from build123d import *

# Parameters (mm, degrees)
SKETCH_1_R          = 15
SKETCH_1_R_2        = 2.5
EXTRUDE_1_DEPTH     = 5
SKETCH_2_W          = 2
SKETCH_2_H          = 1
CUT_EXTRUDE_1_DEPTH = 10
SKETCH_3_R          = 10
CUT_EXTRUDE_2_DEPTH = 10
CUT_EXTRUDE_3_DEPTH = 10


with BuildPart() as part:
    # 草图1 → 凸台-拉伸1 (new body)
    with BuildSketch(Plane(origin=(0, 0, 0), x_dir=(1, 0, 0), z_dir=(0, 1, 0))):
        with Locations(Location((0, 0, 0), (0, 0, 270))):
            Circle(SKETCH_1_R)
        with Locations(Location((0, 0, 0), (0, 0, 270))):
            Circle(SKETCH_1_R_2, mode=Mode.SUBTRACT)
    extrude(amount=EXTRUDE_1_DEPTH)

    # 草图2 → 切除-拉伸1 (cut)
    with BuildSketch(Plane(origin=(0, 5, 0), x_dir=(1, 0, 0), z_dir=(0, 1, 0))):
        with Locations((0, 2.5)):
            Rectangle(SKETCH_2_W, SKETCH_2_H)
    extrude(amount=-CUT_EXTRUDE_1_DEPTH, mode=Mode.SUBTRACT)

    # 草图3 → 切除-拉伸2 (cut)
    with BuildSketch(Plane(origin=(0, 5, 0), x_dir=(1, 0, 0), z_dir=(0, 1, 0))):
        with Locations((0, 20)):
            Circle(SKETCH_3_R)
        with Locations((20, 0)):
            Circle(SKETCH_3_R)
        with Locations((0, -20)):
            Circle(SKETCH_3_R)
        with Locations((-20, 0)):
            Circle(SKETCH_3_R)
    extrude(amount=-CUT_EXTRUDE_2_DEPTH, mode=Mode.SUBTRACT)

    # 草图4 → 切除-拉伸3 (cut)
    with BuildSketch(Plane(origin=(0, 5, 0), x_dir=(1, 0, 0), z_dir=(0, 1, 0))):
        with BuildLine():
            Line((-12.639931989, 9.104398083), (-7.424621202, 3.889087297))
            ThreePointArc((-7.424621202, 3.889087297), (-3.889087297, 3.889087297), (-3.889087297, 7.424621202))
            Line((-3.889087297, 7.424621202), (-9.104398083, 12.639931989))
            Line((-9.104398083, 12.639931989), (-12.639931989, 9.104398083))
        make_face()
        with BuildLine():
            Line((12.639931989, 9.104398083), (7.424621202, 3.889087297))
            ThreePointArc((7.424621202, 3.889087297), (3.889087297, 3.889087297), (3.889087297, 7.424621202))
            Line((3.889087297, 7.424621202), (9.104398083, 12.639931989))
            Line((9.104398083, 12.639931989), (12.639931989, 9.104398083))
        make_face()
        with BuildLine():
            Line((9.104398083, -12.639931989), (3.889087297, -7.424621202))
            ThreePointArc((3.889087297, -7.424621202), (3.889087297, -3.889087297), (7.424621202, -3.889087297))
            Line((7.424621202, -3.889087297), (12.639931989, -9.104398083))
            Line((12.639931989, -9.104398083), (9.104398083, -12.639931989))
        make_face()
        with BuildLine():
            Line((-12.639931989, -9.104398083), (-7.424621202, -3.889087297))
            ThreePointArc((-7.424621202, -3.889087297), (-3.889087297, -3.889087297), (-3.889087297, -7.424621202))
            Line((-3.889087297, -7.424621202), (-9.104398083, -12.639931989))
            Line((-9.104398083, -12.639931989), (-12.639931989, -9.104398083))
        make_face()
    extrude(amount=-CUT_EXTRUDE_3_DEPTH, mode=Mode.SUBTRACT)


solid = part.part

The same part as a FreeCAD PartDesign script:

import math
import FreeCAD as App
import Part
import Sketcher

V = App.Vector
Q = App.Units.Quantity


def add_polygon(sketch, points):
    """Adds a closed chain of lines whose ends are joined by coincident constraints."""
    first, n = sketch.GeometryCount, len(points)
    for a, b in zip(points, points[1:] + points[:1]):
        sketch.addGeometry(Part.LineSegment(App.Vector(*a, 0), App.Vector(*b, 0)), False)
    for i in range(n):
        sketch.addConstraint(Sketcher.Constraint("Coincident", first + i, 2, first + (i + 1) % n, 1))

doc = App.newDocument("Part")
body = doc.addObject("PartDesign::Body", "Body")

# Sketch on XZ plane
sketch1 = body.newObject("Sketcher::SketchObject", "Sketch")
sketch1.AttachmentSupport = (doc.getObject("XZ_Plane"), [""])
sketch1.MapMode = "FlatFace"
sketch1.addGeometry([
    Part.Circle(V(0, 0, 0), V(0, 0, 1), 15),
    Part.Circle(V(0, 0, 0), V(0, 0, 1), 2.5),
], False)
sketch1.addConstraint([
    Sketcher.Constraint("Coincident", 0, 3, -1, 1),
    Sketcher.Constraint("Coincident", 1, 3, -1, 1),
    Sketcher.Constraint("Diameter", 0, Q("30 mm")),
    Sketcher.Constraint("Diameter", 1, Q("5 mm")),
])
pad1 = body.newObject("PartDesign::Pad", "Pad")
pad1.Profile = sketch1
pad1.Length = 5
pad1.Reversed = True

# Sketch on XZ plane
sketch2 = body.newObject("Sketcher::SketchObject", "Sketch001")
sketch2.AttachmentSupport = (doc.getObject("XZ_Plane"), [""])
sketch2.MapMode = "FlatFace"
sketch2.AttachmentOffset = App.Placement(V(0, 0, -5), App.Rotation())
add_polygon(sketch2, [(-1, -3), (-1, -2), (1, -2), (1, -3)])  # lines 0-3
sketch2.addConstraint([
    Sketcher.Constraint("Vertical", 0),
    Sketcher.Constraint("Horizontal", 1),
    Sketcher.Constraint("Vertical", 2),
    Sketcher.Constraint("Horizontal", 3),
    Sketcher.Constraint("DistanceX", 1, 1, 1, 2, Q("2 mm")),
    Sketcher.Constraint("DistanceY", 0, 1, 0, 2, Q("1 mm")),
    Sketcher.Constraint("DistanceX", 0, 2, -1, 1, Q("1 mm")),
    Sketcher.Constraint("DistanceY", 0, 2, -1, 1, Q("2 mm")),
])
pocket1 = body.newObject("PartDesign::Pocket", "Pocket")
pocket1.Profile = sketch2
pocket1.Length = 10
pocket1.Reversed = True

# Sketch on XZ plane
sketch3 = body.newObject("Sketcher::SketchObject", "Sketch002")
sketch3.AttachmentSupport = (doc.getObject("XZ_Plane"), [""])
sketch3.MapMode = "FlatFace"
sketch3.AttachmentOffset = App.Placement(V(0, 0, -5), App.Rotation())
sketch3.addGeometry([
    Part.Circle(V(0, -20, 0), V(0, 0, 1), 10),
    Part.Circle(V(20, 0, 0), V(0, 0, 1), 10),
    Part.Circle(V(0, 20, 0), V(0, 0, 1), 10),
    Part.Circle(V(-20, 0, 0), V(0, 0, 1), 10),
], False)
sketch3.addConstraint([
    Sketcher.Constraint("Equal", 0, 1),
    Sketcher.Constraint("Equal", 1, 2),
    Sketcher.Constraint("Equal", 2, 3),
    Sketcher.Constraint("Symmetric", 0, 3, 2, 3, -1, 1),
    Sketcher.Constraint("Symmetric", 1, 3, 3, 3, -1, 1),
    Sketcher.Constraint("PointOnObject", 0, 3, -2),
    Sketcher.Constraint("PointOnObject", 1, 3, -1),
    Sketcher.Constraint("Diameter", 0, Q("20 mm")),
    Sketcher.Constraint("DistanceY", 0, 3, -1, 1, Q("20 mm")),
    Sketcher.Constraint("DistanceX", -1, 1, 1, 3, Q("20 mm")),
])
pocket2 = body.newObject("PartDesign::Pocket", "Pocket001")
pocket2.Profile = sketch3
pocket2.Length = 10
pocket2.Reversed = True

# Sketch on XZ plane
sketch4 = body.newObject("Sketcher::SketchObject", "Sketch003")
sketch4.AttachmentSupport = (doc.getObject("XZ_Plane"), [""])
sketch4.MapMode = "FlatFace"
sketch4.AttachmentOffset = App.Placement(V(0, 0, -5), App.Rotation())
sketch4.addGeometry([
    Part.LineSegment(V(-12.6, -9.1, 0), V(-7.4, -3.9, 0)),  # 0
    Part.ArcOfCircle(Part.Circle(V(-5.7, -5.7, 0), V(0, 0, 1), 2.5), math.radians(-45), math.radians(135)),  # 1
    Part.LineSegment(V(-3.9, -7.4, 0), V(-9.1, -12.6, 0)),  # 2
    Part.LineSegment(V(-9.1, -12.6, 0), V(-12.6, -9.1, 0)),  # 3
    Part.LineSegment(V(7.4, -3.9, 0), V(12.6, -9.1, 0)),  # 4
    Part.LineSegment(V(12.6, -9.1, 0), V(9.1, -12.6, 0)),  # 5
    Part.LineSegment(V(9.1, -12.6, 0), V(3.9, -7.4, 0)),  # 6
    Part.ArcOfCircle(Part.Circle(V(5.7, -5.7, 0), V(0, 0, 1), 2.5), math.radians(45), math.radians(225)),  # 7
    Part.LineSegment(V(3.9, 7.4, 0), V(9.1, 12.6, 0)),  # 8
    Part.LineSegment(V(9.1, 12.6, 0), V(12.6, 9.1, 0)),  # 9
    Part.LineSegment(V(12.6, 9.1, 0), V(7.4, 3.9, 0)),  # 10
    Part.ArcOfCircle(Part.Circle(V(5.7, 5.7, 0), V(0, 0, 1), 2.5), math.radians(135), math.radians(315)),  # 11
    Part.LineSegment(V(-7.4, 3.9, 0), V(-12.6, 9.1, 0)),  # 12
    Part.LineSegment(V(-12.6, 9.1, 0), V(-9.1, 12.6, 0)),  # 13
    Part.LineSegment(V(-9.1, 12.6, 0), V(-3.9, 7.4, 0)),  # 14
    Part.ArcOfCircle(Part.Circle(V(-5.7, 5.7, 0), V(0, 0, 1), 2.5), math.radians(-135), math.radians(45)),  # 15
], False)
sketch4.addConstraint([
    Sketcher.Constraint("Tangent", 0, 2, 1, 2),
    Sketcher.Constraint("Tangent", 1, 1, 2, 1),
    Sketcher.Constraint("Coincident", 2, 2, 3, 1),
    Sketcher.Constraint("Coincident", 3, 2, 0, 1),
    Sketcher.Constraint("Coincident", 4, 2, 5, 1),
    Sketcher.Constraint("Coincident", 5, 2, 6, 1),
    Sketcher.Constraint("Tangent", 6, 2, 7, 2),
    Sketcher.Constraint("Tangent", 7, 1, 4, 1),
    Sketcher.Constraint("Coincident", 8, 2, 9, 1),
    Sketcher.Constraint("Coincident", 9, 2, 10, 1),
    Sketcher.Constraint("Tangent", 10, 2, 11, 2),
    Sketcher.Constraint("Tangent", 11, 1, 8, 1),
    Sketcher.Constraint("Coincident", 12, 2, 13, 1),
    Sketcher.Constraint("Coincident", 13, 2, 14, 1),
    Sketcher.Constraint("Tangent", 14, 2, 15, 2),
    Sketcher.Constraint("Tangent", 15, 1, 12, 1),
    Sketcher.Constraint("Equal", 1, 7),
    Sketcher.Constraint("Equal", 7, 11),
    Sketcher.Constraint("Equal", 11, 15),
    Sketcher.Constraint("Symmetric", 1, 3, 11, 3, -1, 1),
    Sketcher.Constraint("Symmetric", 7, 3, 15, 3, -1, 1),
    Sketcher.Constraint("Symmetric", 2, 2, 8, 2, -1, 1),
    Sketcher.Constraint("Symmetric", 3, 2, 9, 2, -1, 1),
    Sketcher.Constraint("Symmetric", 4, 2, 12, 2, -1, 1),
    Sketcher.Constraint("Symmetric", 5, 2, 13, 2, -1, 1),
    Sketcher.Constraint("Symmetric", 1, 3, 7, 3, -2),
    Sketcher.Constraint("Symmetric", 3, 2, 4, 2, -2),
    Sketcher.Constraint("Symmetric", 2, 2, 5, 2, -2),
    Sketcher.Constraint("Parallel", 0, 2),
    Sketcher.Constraint("Perpendicular", 2, 3),
    Sketcher.Constraint("Parallel", 3, 4),
    Sketcher.Constraint("Radius", 1, Q("2.5 mm")),
    Sketcher.Constraint("DistanceX", 2, 2, -1, 1, Q("9.104398 mm")),
    Sketcher.Constraint("DistanceY", 3, 2, -1, 1, Q("9.104398 mm")),
    Sketcher.Constraint("DistanceX", 0, 2, -1, 1, Q("7.424621 mm")),
])
pocket3 = body.newObject("PartDesign::Pocket", "Pocket002")
pocket3.Profile = sketch4
pocket3.Length = 10
pocket3.Reversed = True

doc.recompute()
